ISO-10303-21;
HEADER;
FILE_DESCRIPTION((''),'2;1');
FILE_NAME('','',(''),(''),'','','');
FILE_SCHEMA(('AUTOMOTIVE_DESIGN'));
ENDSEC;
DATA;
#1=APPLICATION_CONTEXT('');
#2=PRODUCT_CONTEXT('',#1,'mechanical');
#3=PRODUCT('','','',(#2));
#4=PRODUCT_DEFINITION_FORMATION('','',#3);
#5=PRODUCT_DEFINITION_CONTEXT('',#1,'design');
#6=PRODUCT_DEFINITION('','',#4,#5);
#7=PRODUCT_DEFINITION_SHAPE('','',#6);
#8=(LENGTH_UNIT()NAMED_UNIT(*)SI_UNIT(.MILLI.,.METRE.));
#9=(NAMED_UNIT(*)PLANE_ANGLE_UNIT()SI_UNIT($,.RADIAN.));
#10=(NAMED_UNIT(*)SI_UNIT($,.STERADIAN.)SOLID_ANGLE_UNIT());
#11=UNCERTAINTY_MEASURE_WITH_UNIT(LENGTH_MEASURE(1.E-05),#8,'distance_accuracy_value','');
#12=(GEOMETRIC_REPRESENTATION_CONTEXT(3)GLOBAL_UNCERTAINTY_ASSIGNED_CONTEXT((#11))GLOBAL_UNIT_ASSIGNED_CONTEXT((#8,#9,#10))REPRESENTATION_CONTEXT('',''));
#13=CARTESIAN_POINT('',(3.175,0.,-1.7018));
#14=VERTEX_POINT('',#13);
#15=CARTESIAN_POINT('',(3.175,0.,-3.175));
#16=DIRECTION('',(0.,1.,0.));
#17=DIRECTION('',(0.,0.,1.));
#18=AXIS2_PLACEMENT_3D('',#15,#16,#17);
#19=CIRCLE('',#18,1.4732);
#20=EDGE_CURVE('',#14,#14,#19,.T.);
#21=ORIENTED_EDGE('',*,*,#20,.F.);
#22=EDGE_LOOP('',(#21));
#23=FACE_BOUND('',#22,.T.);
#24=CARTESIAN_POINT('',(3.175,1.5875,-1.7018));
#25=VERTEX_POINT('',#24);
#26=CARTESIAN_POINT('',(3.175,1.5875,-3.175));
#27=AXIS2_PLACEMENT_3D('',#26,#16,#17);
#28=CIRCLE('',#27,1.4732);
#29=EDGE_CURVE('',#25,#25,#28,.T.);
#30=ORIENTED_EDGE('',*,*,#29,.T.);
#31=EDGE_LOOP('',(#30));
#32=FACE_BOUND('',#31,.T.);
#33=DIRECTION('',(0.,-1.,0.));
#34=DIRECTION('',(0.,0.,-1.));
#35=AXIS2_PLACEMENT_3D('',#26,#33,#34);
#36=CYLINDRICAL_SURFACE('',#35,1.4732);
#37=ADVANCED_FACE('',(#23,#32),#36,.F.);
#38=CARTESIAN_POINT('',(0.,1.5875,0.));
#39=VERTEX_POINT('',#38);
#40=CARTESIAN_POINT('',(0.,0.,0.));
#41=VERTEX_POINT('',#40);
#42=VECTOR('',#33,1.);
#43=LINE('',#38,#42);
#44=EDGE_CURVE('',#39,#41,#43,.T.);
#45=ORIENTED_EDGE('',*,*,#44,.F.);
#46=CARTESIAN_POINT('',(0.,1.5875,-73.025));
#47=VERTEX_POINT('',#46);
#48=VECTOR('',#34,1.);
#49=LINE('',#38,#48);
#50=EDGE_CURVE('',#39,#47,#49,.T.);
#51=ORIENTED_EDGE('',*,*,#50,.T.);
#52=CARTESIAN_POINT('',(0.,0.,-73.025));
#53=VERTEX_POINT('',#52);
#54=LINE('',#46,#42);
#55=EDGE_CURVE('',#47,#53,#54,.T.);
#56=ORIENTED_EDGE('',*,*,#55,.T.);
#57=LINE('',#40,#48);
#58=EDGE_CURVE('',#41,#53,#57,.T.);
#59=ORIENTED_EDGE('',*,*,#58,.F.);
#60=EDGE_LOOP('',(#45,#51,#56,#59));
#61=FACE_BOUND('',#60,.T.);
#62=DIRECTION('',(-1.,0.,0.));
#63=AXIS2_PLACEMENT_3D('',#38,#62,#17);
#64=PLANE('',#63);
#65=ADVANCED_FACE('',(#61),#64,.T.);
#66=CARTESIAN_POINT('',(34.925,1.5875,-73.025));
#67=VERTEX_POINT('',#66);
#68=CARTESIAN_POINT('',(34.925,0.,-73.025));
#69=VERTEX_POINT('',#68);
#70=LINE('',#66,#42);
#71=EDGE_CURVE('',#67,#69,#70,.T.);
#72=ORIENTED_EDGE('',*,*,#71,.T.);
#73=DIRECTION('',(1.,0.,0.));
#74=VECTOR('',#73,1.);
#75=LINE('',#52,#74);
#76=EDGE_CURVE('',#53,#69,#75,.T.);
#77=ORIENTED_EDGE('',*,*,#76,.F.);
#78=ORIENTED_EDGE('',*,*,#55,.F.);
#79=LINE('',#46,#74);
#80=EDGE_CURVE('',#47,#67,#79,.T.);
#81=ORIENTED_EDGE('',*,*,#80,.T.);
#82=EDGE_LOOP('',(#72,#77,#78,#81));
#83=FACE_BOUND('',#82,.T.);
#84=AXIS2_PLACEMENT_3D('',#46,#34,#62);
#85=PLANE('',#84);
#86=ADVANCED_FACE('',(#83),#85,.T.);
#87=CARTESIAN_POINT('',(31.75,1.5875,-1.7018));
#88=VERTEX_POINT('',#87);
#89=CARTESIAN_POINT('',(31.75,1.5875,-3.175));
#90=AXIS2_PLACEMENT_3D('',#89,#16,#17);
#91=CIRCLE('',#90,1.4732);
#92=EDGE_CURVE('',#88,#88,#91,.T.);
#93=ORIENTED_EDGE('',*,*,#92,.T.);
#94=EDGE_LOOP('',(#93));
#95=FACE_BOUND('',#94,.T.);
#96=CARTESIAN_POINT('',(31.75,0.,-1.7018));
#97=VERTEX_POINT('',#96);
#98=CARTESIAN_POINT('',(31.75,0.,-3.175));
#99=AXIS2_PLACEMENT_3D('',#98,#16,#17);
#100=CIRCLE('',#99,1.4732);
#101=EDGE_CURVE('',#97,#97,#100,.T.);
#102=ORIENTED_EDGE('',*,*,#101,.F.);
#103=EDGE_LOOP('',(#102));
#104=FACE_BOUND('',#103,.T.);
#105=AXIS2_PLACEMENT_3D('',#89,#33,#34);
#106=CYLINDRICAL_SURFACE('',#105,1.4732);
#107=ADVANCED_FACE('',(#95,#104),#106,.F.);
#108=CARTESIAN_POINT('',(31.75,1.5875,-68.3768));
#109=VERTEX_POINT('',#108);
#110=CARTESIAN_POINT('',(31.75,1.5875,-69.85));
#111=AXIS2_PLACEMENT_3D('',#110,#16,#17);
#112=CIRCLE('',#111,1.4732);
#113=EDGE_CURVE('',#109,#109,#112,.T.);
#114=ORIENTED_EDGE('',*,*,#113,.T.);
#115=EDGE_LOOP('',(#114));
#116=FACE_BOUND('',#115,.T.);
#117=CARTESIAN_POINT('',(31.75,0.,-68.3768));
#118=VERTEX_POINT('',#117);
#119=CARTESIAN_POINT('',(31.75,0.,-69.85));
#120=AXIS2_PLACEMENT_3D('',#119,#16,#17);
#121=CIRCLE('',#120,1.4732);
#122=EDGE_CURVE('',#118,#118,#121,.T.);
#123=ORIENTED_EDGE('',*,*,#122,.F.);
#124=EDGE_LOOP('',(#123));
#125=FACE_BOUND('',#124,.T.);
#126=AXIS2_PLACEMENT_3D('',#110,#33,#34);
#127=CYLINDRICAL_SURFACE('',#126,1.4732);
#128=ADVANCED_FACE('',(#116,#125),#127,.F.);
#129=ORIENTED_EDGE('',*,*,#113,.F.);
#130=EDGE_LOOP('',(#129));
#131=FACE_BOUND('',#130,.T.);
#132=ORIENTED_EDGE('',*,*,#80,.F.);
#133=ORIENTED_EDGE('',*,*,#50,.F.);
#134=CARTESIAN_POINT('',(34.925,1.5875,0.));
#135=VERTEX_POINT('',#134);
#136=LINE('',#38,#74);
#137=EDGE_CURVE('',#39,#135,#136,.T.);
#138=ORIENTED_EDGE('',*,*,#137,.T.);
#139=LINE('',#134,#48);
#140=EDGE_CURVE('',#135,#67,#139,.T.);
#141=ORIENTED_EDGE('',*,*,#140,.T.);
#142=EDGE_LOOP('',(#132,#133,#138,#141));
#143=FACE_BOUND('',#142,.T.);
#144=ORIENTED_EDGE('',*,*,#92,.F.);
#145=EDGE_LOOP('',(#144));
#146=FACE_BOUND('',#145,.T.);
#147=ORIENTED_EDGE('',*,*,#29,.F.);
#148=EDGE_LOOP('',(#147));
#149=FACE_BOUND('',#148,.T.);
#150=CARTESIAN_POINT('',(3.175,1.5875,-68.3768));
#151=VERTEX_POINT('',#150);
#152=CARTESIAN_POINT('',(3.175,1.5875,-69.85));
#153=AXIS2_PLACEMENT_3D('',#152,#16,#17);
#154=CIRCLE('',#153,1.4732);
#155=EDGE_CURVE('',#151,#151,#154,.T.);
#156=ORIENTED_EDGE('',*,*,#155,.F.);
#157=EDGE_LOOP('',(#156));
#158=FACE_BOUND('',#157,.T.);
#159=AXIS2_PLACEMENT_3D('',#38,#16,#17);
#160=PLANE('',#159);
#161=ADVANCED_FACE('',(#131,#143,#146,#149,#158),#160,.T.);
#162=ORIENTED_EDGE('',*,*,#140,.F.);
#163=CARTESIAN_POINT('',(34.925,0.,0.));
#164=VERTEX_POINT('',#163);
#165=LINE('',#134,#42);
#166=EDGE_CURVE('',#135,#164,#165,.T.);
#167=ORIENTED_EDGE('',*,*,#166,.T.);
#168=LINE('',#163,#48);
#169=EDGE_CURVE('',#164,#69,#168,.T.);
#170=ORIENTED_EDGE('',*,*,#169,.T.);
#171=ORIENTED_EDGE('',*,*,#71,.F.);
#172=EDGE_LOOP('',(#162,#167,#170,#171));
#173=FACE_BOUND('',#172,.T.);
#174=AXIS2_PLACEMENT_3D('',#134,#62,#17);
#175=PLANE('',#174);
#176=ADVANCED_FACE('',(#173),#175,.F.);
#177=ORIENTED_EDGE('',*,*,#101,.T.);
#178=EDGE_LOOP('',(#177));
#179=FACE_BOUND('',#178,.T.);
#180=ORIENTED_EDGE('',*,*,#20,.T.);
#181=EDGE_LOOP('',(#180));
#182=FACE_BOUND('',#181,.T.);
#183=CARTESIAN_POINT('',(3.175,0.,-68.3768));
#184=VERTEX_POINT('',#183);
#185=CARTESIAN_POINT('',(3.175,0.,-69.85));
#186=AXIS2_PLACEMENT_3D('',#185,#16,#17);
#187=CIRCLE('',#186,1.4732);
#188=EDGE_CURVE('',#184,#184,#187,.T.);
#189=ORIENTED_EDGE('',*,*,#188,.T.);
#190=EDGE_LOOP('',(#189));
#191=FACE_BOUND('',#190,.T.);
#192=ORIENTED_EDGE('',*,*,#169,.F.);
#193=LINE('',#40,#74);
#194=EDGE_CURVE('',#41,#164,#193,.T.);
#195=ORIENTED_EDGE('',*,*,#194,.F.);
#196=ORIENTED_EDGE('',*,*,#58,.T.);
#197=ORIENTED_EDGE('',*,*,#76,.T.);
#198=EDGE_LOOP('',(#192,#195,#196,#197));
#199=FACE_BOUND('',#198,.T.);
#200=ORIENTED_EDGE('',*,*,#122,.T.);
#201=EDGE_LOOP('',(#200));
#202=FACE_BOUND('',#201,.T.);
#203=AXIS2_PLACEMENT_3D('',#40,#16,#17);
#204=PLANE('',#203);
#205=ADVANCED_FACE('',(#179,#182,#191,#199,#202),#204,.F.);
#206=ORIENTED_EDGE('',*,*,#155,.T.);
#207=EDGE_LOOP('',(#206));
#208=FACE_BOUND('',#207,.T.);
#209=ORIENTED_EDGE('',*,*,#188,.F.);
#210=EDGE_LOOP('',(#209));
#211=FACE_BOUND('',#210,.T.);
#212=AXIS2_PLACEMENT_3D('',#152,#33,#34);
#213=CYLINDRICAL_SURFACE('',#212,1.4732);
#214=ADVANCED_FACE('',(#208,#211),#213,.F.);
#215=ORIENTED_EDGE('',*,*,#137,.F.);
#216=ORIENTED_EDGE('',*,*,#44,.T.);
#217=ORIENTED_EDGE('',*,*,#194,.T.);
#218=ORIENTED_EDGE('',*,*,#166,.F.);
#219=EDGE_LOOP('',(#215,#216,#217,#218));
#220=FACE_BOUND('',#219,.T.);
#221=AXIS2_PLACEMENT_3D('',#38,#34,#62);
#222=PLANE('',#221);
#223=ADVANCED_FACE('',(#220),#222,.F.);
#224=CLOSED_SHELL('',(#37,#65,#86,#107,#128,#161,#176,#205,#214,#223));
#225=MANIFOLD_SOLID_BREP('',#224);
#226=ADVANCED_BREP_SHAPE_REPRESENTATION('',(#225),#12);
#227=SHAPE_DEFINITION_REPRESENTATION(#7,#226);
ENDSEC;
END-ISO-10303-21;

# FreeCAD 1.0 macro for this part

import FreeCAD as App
import Part
import Sketcher

V = App.Vector
Q = App.Units.Quantity

doc = App.newDocument("Part")
params = doc.addObject("Spreadsheet::Sheet", "Params")
for row, (alias, value) in enumerate([
    ("sketch1_width", "1.375 in"),
    ("sketch1_height", "2.875 in"),
    ("pad1_length", "0.0625 in"),
    ("sketch2_diameter", "0.116 in"),
    ("pocket1_length", "0.0625 in"),
], start=1):
    params.set(f"A{row}", alias)
    params.set(f"B{row}", "=" + value)
    params.setAlias(f"B{row}", alias)

body = doc.addObject("PartDesign::Body", "Body")

sketch1 = body.newObject("Sketcher::SketchObject", "Sketch")
sketch1.AttachmentSupport = (doc.getObject("XZ_Plane"), [""])
sketch1.MapMode = "FlatFace"
sketch1.addGeometry(Part.LineSegment(V(0, -73, 0), V(0, 0, 0)), False)
sketch1.addGeometry(Part.LineSegment(V(0, 0, 0), V(35, 0, 0)), False)
sketch1.addGeometry(Part.LineSegment(V(35, 0, 0), V(35, -73, 0)), False)
sketch1.addGeometry(Part.LineSegment(V(35, -73, 0), V(0, -73, 0)), False)
sketch1.addConstraint(Sketcher.Constraint("Coincident", 0, 2, 1, 1))
sketch1.addConstraint(Sketcher.Constraint("Coincident", 1, 2, 2, 1))
sketch1.addConstraint(Sketcher.Constraint("Coincident", 2, 2, 3, 1))
sketch1.addConstraint(Sketcher.Constraint("Coincident", 3, 2, 0, 1))
sketch1.addConstraint(Sketcher.Constraint("Vertical", 0))
sketch1.addConstraint(Sketcher.Constraint("Horizontal", 1))
sketch1.addConstraint(Sketcher.Constraint("Vertical", 2))
sketch1.addConstraint(Sketcher.Constraint("Horizontal", 3))
sketch1.addConstraint(Sketcher.Constraint("Coincident", 0, 2, -1, 1))
sketch1.addConstraint(Sketcher.Constraint("DistanceX", 1, 1, 1, 2, Q("1.375 in")))
sketch1.addConstraint(Sketcher.Constraint("DistanceY", 0, 1, 0, 2, Q("2.875 in")))
sketch1.setExpression("Constraints[9]", "Params.sketch1_width")
sketch1.setExpression("Constraints[10]", "Params.sketch1_height")
pad1 = body.newObject("PartDesign::Pad", "Pad")
pad1.Profile = sketch1
pad1.setExpression("Length", "Params.pad1_length")
pad1.Reversed = True

sketch2 = body.newObject("Sketcher::SketchObject", "Sketch001")
sketch2.AttachmentSupport = (doc.getObject("XZ_Plane"), [""])
sketch2.MapMode = "FlatFace"
sketch2.addGeometry(Part.Circle(V(31.8, -69.8, 0), V(0, 0, 1), 1.5), False)
sketch2.addGeometry(Part.Circle(V(3.2, -69.8, 0), V(0, 0, 1), 1.5), False)
sketch2.addGeometry(Part.Circle(V(31.8, -3.2, 0), V(0, 0, 1), 1.5), False)
sketch2.addGeometry(Part.Circle(V(3.2, -3.2, 0), V(0, 0, 1), 1.5), False)
sketch2.addConstraint(Sketcher.Constraint("Equal", 0, 1))
sketch2.addConstraint(Sketcher.Constraint("Equal", 1, 2))
sketch2.addConstraint(Sketcher.Constraint("Equal", 2, 3))
sketch2.addConstraint(Sketcher.Constraint("Horizontal", 0, 3, 1, 3))
sketch2.addConstraint(Sketcher.Constraint("Horizontal", 2, 3, 3, 3))
sketch2.addConstraint(Sketcher.Constraint("Vertical", 0, 3, 2, 3))
sketch2.addConstraint(Sketcher.Constraint("Vertical", 1, 3, 3, 3))
sketch2.addConstraint(Sketcher.Constraint("Diameter", 0, Q("0.116 in")))
sketch2.addConstraint(Sketcher.Constraint("DistanceX", -1, 1, 0, 3, Q("1.25 in")))
sketch2.addConstraint(Sketcher.Constraint("DistanceY", 0, 3, -1, 1, Q("2.75 in")))
sketch2.addConstraint(Sketcher.Constraint("DistanceX", -1, 1, 1, 3, Q("0.125 in")))
sketch2.addConstraint(Sketcher.Constraint("DistanceY", 2, 3, -1, 1, Q("0.125 in")))
sketch2.setExpression("Constraints[7]", "Params.sketch2_diameter")
pocket1 = body.newObject("PartDesign::Pocket", "Pocket")
pocket1.Profile = sketch2
pocket1.setExpression("Length", "Params.pocket1_length")

doc.recompute()
